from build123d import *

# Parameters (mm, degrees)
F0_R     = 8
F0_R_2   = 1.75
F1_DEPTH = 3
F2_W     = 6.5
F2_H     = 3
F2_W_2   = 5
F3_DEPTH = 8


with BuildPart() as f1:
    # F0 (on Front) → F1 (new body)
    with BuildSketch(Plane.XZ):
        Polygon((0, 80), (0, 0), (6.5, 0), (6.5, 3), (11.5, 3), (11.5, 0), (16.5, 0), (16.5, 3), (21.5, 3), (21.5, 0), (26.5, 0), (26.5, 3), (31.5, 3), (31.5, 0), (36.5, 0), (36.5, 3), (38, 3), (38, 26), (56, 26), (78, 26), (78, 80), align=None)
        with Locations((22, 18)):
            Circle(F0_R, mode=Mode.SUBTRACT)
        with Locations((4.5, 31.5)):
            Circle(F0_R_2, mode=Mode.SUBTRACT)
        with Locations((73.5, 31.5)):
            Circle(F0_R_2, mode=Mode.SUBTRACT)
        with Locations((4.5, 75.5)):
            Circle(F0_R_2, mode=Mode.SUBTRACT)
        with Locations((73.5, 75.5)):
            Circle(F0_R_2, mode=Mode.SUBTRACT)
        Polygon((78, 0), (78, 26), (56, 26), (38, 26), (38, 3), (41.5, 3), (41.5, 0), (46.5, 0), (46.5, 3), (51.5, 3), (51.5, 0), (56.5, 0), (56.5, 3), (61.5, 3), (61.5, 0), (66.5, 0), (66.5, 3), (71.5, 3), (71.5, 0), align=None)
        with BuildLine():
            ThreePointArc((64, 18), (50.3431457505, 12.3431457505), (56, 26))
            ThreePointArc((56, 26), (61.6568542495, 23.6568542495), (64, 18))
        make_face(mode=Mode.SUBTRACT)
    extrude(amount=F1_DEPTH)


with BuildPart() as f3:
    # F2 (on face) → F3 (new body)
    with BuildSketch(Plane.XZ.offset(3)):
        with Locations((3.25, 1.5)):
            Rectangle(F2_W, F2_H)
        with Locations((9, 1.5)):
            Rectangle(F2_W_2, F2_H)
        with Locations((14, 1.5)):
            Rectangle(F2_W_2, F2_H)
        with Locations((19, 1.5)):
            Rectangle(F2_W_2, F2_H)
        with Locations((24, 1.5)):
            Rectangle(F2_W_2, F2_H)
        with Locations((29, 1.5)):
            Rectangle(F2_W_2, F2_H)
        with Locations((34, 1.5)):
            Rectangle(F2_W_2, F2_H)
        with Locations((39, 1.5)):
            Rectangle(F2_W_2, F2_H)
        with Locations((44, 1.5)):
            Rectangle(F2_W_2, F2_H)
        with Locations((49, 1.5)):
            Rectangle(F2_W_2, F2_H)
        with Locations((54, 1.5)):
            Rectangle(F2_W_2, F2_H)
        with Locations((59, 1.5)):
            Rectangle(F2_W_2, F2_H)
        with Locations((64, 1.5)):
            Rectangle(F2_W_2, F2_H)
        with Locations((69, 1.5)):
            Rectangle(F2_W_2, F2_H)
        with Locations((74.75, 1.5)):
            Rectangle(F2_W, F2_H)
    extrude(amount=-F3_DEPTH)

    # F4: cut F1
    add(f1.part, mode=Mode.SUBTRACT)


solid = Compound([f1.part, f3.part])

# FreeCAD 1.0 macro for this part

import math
import FreeCAD as App
import Part
import Sketcher

doc = App.newDocument("Part")
params = doc.addObject("Spreadsheet::Sheet", "Params")
for row, (alias, value) in enumerate([
    ("sketch1_diameter", "16 mm"),
    ("sketch1_diameter2", "3.5 mm"),
    ("sketch1_width", "5 mm"),
    ("sketch1_width2", "78 mm"),
    ("sketch1_height", "80 mm"),
    ("pad1_length", "3 mm"),
    ("sketch2_width", "78 mm"),
    ("sketch2_height", "3 mm"),
    ("pad2_length", "8 mm"),
], start=1):
    params.set(f"A{row}", alias)
    params.set(f"B{row}", "=" + value)
    params.setAlias(f"B{row}", alias)

body = doc.addObject("PartDesign::Body", "Body")

# Sketch on XZ plane
sketch1 = body.newObject("Sketcher::SketchObject", "Sketch")
sketch1.AttachmentSupport = (doc.getObject("XZ_Plane"), [""])
sketch1.MapMode = "FlatFace"
sketch1.addGeometry(Part.LineSegment(App.Vector(0, 80, 0), App.Vector(0, 0, 0)), False)
sketch1.addGeometry(Part.LineSegment(App.Vector(0, 0, 0), App.Vector(6.5, 0, 0)), False)
sketch1.addGeometry(Part.LineSegment(App.Vector(6.5, 0, 0), App.Vector(6.5, 3, 0)), False)
sketch1.addGeometry(Part.LineSegment(App.Vector(6.5, 3, 0), App.Vector(11.5, 3, 0)), False)
sketch1.addGeometry(Part.LineSegment(App.Vector(11.5, 3, 0), App.Vector(11.5, 0, 0)), False)
sketch1.addGeometry(Part.LineSegment(App.Vector(11.5, 0, 0), App.Vector(16.5, 0, 0)), False)
sketch1.addGeometry(Part.LineSegment(App.Vector(16.5, 0, 0), App.Vector(16.5, 3, 0)), False)
sketch1.addGeometry(Part.LineSegment(App.Vector(16.5, 3, 0), App.Vector(21.5, 3, 0)), False)
sketch1.addGeometry(Part.LineSegment(App.Vector(21.5, 3, 0), App.Vector(21.5, 0, 0)), False)
sketch1.addGeometry(Part.LineSegment(App.Vector(21.5, 0, 0), App.Vector(26.5, 0, 0)), False)
sketch1.addGeometry(Part.LineSegment(App.Vector(26.5, 0, 0), App.Vector(26.5, 3, 0)), False)
sketch1.addGeometry(Part.LineSegment(App.Vector(26.5, 3, 0), App.Vector(31.5, 3, 0)), False)
sketch1.addGeometry(Part.LineSegment(App.Vector(31.5, 3, 0), App.Vector(31.5, 0, 0)), False)
sketch1.addGeometry(Part.LineSegment(App.Vector(31.5, 0, 0), App.Vector(36.5, 0, 0)), False)
sketch1.addGeometry(Part.LineSegment(App.Vector(36.5, 0, 0), App.Vector(36.5, 3, 0)), False)
sketch1.addGeometry(Part.LineSegment(App.Vector(36.5, 3, 0), App.Vector(41.5, 3, 0)), False)
sketch1.addGeometry(Part.LineSegment(App.Vector(41.5, 3, 0), App.Vector(41.5, 0, 0)), False)
sketch1.addGeometry(Part.LineSegment(App.Vector(41.5, 0, 0), App.Vector(46.5, 0, 0)), False)
sketch1.addGeometry(Part.LineSegment(App.Vector(46.5, 0, 0), App.Vector(46.5, 3, 0)), False)
sketch1.addGeometry(Part.LineSegment(App.Vector(46.5, 3, 0), App.Vector(51.5, 3, 0)), False)
sketch1.addGeometry(Part.LineSegment(App.Vector(51.5, 3, 0), App.Vector(51.5, 0, 0)), False)
sketch1.addGeometry(Part.LineSegment(App.Vector(51.5, 0, 0), App.Vector(56.5, 0, 0)), False)
sketch1.addGeometry(Part.LineSegment(App.Vector(56.5, 0, 0), App.Vector(56.5, 3, 0)), False)
sketch1.addGeometry(Part.LineSegment(App.Vector(56.5, 3, 0), App.Vector(61.5, 3, 0)), False)
sketch1.addGeometry(Part.LineSegment(App.Vector(61.5, 3, 0), App.Vector(61.5, 0, 0)), False)
sketch1.addGeometry(Part.LineSegment(App.Vector(61.5, 0, 0), App.Vector(66.5, 0, 0)), False)
sketch1.addGeometry(Part.LineSegment(App.Vector(66.5, 0, 0), App.Vector(66.5, 3, 0)), False)
sketch1.addGeometry(Part.LineSegment(App.Vector(66.5, 3, 0), App.Vector(71.5, 3, 0)), False)
sketch1.addGeometry(Part.LineSegment(App.Vector(71.5, 3, 0), App.Vector(71.5, 0, 0)), False)
sketch1.addGeometry(Part.LineSegment(App.Vector(71.5, 0, 0), App.Vector(78, 0, 0)), False)
sketch1.addGeometry(Part.LineSegment(App.Vector(78, 0, 0), App.Vector(78, 80, 0)), False)
sketch1.addGeometry(Part.LineSegment(App.Vector(78, 80, 0), App.Vector(0, 80, 0)), False)
sketch1.addGeometry(Part.Circle(App.Vector(22, 18, 0), App.Vector(0, 0, 1), 8), False)
sketch1.addGeometry(Part.Circle(App.Vector(4.5, 31.5, 0), App.Vector(0, 0, 1), 1.75), False)
sketch1.addGeometry(Part.ArcOfCircle(Part.Circle(App.Vector(56, 18, 0), App.Vector(0, 0, 1), 8), math.radians(0), math.radians(90)), False)
sketch1.addGeometry(Part.ArcOfCircle(Part.Circle(App.Vector(56, 18, 0), App.Vector(0, 0, 1), 8), math.radians(90), math.radians(360)), False)
sketch1.addGeometry(Part.Circle(App.Vector(73.5, 31.5, 0), App.Vector(0, 0, 1), 1.75), False)
sketch1.addGeometry(Part.Circle(App.Vector(4.5, 75.5, 0), App.Vector(0, 0, 1), 1.75), False)
sketch1.addGeometry(Part.Circle(App.Vector(73.5, 75.5, 0), App.Vector(0, 0, 1), 1.75), False)
sketch1.addConstraint(Sketcher.Constraint("Coincident", 0, 2, 1, 1))
sketch1.addConstraint(Sketcher.Constraint("Coincident", 1, 2, 2, 1))
sketch1.addConstraint(Sketcher.Constraint("Coincident", 2, 2, 3, 1))
sketch1.addConstraint(Sketcher.Constraint("Coincident", 3, 2, 4, 1))
sketch1.addConstraint(Sketcher.Constraint("Coincident", 4, 2, 5, 1))
sketch1.addConstraint(Sketcher.Constraint("Coincident", 5, 2, 6, 1))
sketch1.addConstraint(Sketcher.Constraint("Coincident", 6, 2, 7, 1))
sketch1.addConstraint(Sketcher.Constraint("Coincident", 7, 2, 8, 1))
sketch1.addConstraint(Sketcher.Constraint("Coincident", 8, 2, 9, 1))
sketch1.addConstraint(Sketcher.Constraint("Coincident", 9, 2, 10, 1))
sketch1.addConstraint(Sketcher.Constraint("Coincident", 10, 2, 11, 1))
sketch1.addConstraint(Sketcher.Constraint("Coincident", 11, 2, 12, 1))
sketch1.addConstraint(Sketcher.Constraint("Coincident", 12, 2, 13, 1))
sketch1.addConstraint(Sketcher.Constraint("Coincident", 13, 2, 14, 1))
sketch1.addConstraint(Sketcher.Constraint("Coincident", 14, 2, 15, 1))
sketch1.addConstraint(Sketcher.Constraint("Coincident", 15, 2, 16, 1))
sketch1.addConstraint(Sketcher.Constraint("Coincident", 16, 2, 17, 1))
sketch1.addConstraint(Sketcher.Constraint("Coincident", 17, 2, 18, 1))
sketch1.addConstraint(Sketcher.Constraint("Coincident", 18, 2, 19, 1))
sketch1.addConstraint(Sketcher.Constraint("Coincident", 19, 2, 20, 1))
sketch1.addConstraint(Sketcher.Constraint("Coincident", 20, 2, 21, 1))
sketch1.addConstraint(Sketcher.Constraint("Coincident", 21, 2, 22, 1))
sketch1.addConstraint(Sketcher.Constraint("Coincident", 22, 2, 23, 1))
sketch1.addConstraint(Sketcher.Constraint("Coincident", 23, 2, 24, 1))
sketch1.addConstraint(Sketcher.Constraint("Coincident", 24, 2, 25, 1))
sketch1.addConstraint(Sketcher.Constraint("Coincident", 25, 2, 26, 1))
sketch1.addConstraint(Sketcher.Constraint("Coincident", 26, 2, 27, 1))
sketch1.addConstraint(Sketcher.Constraint("Coincident", 27, 2, 28, 1))
sketch1.addConstraint(Sketcher.Constraint("Coincident", 28, 2, 29, 1))
sketch1.addConstraint(Sketcher.Constraint("Coincident", 29, 2, 30, 1))
sketch1.addConstraint(Sketcher.Constraint("Coincident", 30, 2, 31, 1))
sketch1.addConstraint(Sketcher.Constraint("Coincident", 31, 2, 0, 1))
sketch1.addConstraint(Sketcher.Constraint("Tangent", 34, 1, 35, 2))
sketch1.addConstraint(Sketcher.Constraint("Coincident", 35, 1, 34, 2))
sketch1.addConstraint(Sketcher.Constraint("Vertical", 0))
sketch1.addConstraint(Sketcher.Constraint("Horizontal", 1))
sketch1.addConstraint(Sketcher.Constraint("Vertical", 2))
sketch1.addConstraint(Sketcher.Constraint("Horizontal", 3))
sketch1.addConstraint(Sketcher.Constraint("Vertical", 4))
sketch1.addConstraint(Sketcher.Constraint("Horizontal", 5))
sketch1.addConstraint(Sketcher.Constraint("Vertical", 6))
sketch1.addConstraint(Sketcher.Constraint("Horizontal", 7))
sketch1.addConstraint(Sketcher.Constraint("Vertical", 8))
sketch1.addConstraint(Sketcher.Constraint("Horizontal", 9))
sketch1.addConstraint(Sketcher.Constraint("Vertical", 10))
sketch1.addConstraint(Sketcher.Constraint("Horizontal", 11))
sketch1.addConstraint(Sketcher.Constraint("Vertical", 12))
sketch1.addConstraint(Sketcher.Constraint("Horizontal", 13))
sketch1.addConstraint(Sketcher.Constraint("Vertical", 14))
sketch1.addConstraint(Sketcher.Constraint("Horizontal", 15))
sketch1.addConstraint(Sketcher.Constraint("Vertical", 16))
sketch1.addConstraint(Sketcher.Constraint("Horizontal", 17))
sketch1.addConstraint(Sketcher.Constraint("Vertical", 18))
sketch1.addConstraint(Sketcher.Constraint("Horizontal", 19))
sketch1.addConstraint(Sketcher.Constraint("Vertical", 20))
sketch1.addConstraint(Sketcher.Constraint("Horizontal", 21))
sketch1.addConstraint(Sketcher.Constraint("Vertical", 22))
sketch1.addConstraint(Sketcher.Constraint("Horizontal", 23))
sketch1.addConstraint(Sketcher.Constraint("Vertical", 24))
sketch1.addConstraint(Sketcher.Constraint("Horizontal", 25))
sketch1.addConstraint(Sketcher.Constraint("Vertical", 26))
sketch1.addConstraint(Sketcher.Constraint("Horizontal", 27))
sketch1.addConstraint(Sketcher.Constraint("Vertical", 28))
sketch1.addConstraint(Sketcher.Constraint("Horizontal", 29))
sketch1.addConstraint(Sketcher.Constraint("Vertical", 30))
sketch1.addConstraint(Sketcher.Constraint("Horizontal", 31))
sketch1.addConstraint(Sketcher.Constraint("Coincident", 0, 2, -1, 1))
sketch1.addConstraint(Sketcher.Constraint("Equal", 32, 34))
sketch1.addConstraint(Sketcher.Constraint("Equal", 33, 36))
sketch1.addConstraint(Sketcher.Constraint("Equal", 36, 37))
sketch1.addConstraint(Sketcher.Constraint("Equal", 37, 38))
sketch1.addConstraint(Sketcher.Constraint("PointOnObject", 4, 2, -1))
sketch1.addConstraint(Sketcher.Constraint("PointOnObject", 8, 2, -1))
sketch1.addConstraint(Sketcher.Constraint("PointOnObject", 12, 2, -1))
sketch1.addConstraint(Sketcher.Constraint("PointOnObject", 16, 2, -1))
sketch1.addConstraint(Sketcher.Constraint("PointOnObject", 20, 2, -1))
sketch1.addConstraint(Sketcher.Constraint("PointOnObject", 24, 2, -1))
sketch1.addConstraint(Sketcher.Constraint("PointOnObject", 28, 2, -1))
sketch1.addConstraint(Sketcher.Constraint("Horizontal", 32, 3, 34, 3))
sketch1.addConstraint(Sketcher.Constraint("Horizontal", 33, 3, 36, 3))
sketch1.addConstraint(Sketcher.Constraint("Horizontal", 37, 3, 38, 3))
sketch1.addConstraint(Sketcher.Constraint("Horizontal", 3, 2, 6, 2))
sketch1.addConstraint(Sketcher.Constraint("Horizontal", 7, 2, 10, 2))
sketch1.addConstraint(Sketcher.Constraint("Horizontal", 11, 2, 14, 2))
sketch1.addConstraint(Sketcher.Constraint("Horizontal", 15, 2, 18, 2))
sketch1.addConstraint(Sketcher.Constraint("Horizontal", 19, 2, 22, 2))
sketch1.addConstraint(Sketcher.Constraint("Horizontal", 23, 2, 26, 2))
sketch1.addConstraint(Sketcher.Constraint("Horizontal", 35, 3, 34, 1))
sketch1.addConstraint(Sketcher.Constraint("Vertical", 33, 3, 37, 3))
sketch1.addConstraint(Sketcher.Constraint("Vertical", 36, 3, 38, 3))
sketch1.addConstraint(Sketcher.Constraint("Vertical", 34, 3, 35, 1))
sketch1.addConstraint(Sketcher.Constraint("Equal", 3, 5))
sketch1.addConstraint(Sketcher.Constraint("Equal", 5, 7))
sketch1.addConstraint(Sketcher.Constraint("Equal", 7, 9))
sketch1.addConstraint(Sketcher.Constraint("Equal", 9, 11))
sketch1.addConstraint(Sketcher.Constraint("Equal", 11, 13))
sketch1.addConstraint(Sketcher.Constraint("Equal", 13, 15))
sketch1.addConstraint(Sketcher.Constraint("Equal", 15, 17))
sketch1.addConstraint(Sketcher.Constraint("Equal", 17, 19))
sketch1.addConstraint(Sketcher.Constraint("Equal", 19, 21))
sketch1.addConstraint(Sketcher.Constraint("Equal", 21, 23))
sketch1.addConstraint(Sketcher.Constraint("Equal", 23, 25))
sketch1.addConstraint(Sketcher.Constraint("Equal", 25, 27))
sketch1.addConstraint(Sketcher.Constraint("Equal", 1, 29))
sketch1.addConstraint(Sketcher.Constraint("Diameter", 32, 16.0))
sketch1.addConstraint(Sketcher.Constraint("Diameter", 33, 3.5))
sketch1.addConstraint(Sketcher.Constraint("DistanceX", 3, 1, 3, 2, 5.0))
sketch1.addConstraint(Sketcher.Constraint("DistanceX", 31, 2, 31, 1, 78.0))
sketch1.addConstraint(Sketcher.Constraint("DistanceY", 0, 2, 0, 1, 80.0))
sketch1.addConstraint(Sketcher.Constraint("DistanceY", 2, 1, 2, 2, 3.0))
sketch1.addConstraint(Sketcher.Constraint("DistanceX", -1, 1, 32, 3, 22.0))
sketch1.addConstraint(Sketcher.Constraint("DistanceY", -1, 1, 32, 3, 18.0))
sketch1.addConstraint(Sketcher.Constraint("DistanceX", -1, 1, 34, 3, 56.0))
sketch1.addConstraint(Sketcher.Constraint("DistanceX", 33, 3, 36, 3, 69.0))
sketch1.addConstraint(Sketcher.Constraint("DistanceY", 33, 3, 37, 3, 44.0))
sketch1.addConstraint(Sketcher.Constraint("DistanceX", 33, 3, 1, 2, 2.0))
sketch1.addConstraint(Sketcher.Constraint("DistanceY", -1, 1, 33, 3, 31.5))
sketch1.setExpression("Constraints[104]", "Params.sketch1_diameter")
sketch1.setExpression("Constraints[105]", "Params.sketch1_diameter2")
sketch1.setExpression("Constraints[106]", "Params.sketch1_width")
sketch1.setExpression("Constraints[107]", "Params.sketch1_width2")
sketch1.setExpression("Constraints[108]", "Params.sketch1_height")
pad1 = body.newObject("PartDesign::Pad", "Pad")
pad1.Profile = sketch1
pad1.setExpression("Length", "Params.pad1_length")
body2 = doc.addObject("PartDesign::Body", "Body001")

# Sketch on XZ plane
sketch2 = body2.newObject("Sketcher::SketchObject", "Sketch001")
sketch2.AttachmentSupport = (doc.getObject("XZ_Plane001"), [""])
sketch2.MapMode = "FlatFace"
sketch2.AttachmentOffset = App.Placement(App.Vector(0, 0, 3), App.Rotation())
sketch2.addGeometry(Part.LineSegment(App.Vector(0, 3, 0), App.Vector(0, 0, 0)), False)
sketch2.addGeometry(Part.LineSegment(App.Vector(0, 0, 0), App.Vector(78, 0, 0)), False)
sketch2.addGeometry(Part.LineSegment(App.Vector(78, 0, 0), App.Vector(78, 3, 0)), False)
sketch2.addGeometry(Part.LineSegment(App.Vector(78, 3, 0), App.Vector(0, 3, 0)), False)
sketch2.addConstraint(Sketcher.Constraint("Coincident", 0, 2, 1, 1))
sketch2.addConstraint(Sketcher.Constraint("Coincident", 1, 2, 2, 1))
sketch2.addConstraint(Sketcher.Constraint("Coincident", 2, 2, 3, 1))
sketch2.addConstraint(Sketcher.Constraint("Coincident", 3, 2, 0, 1))
sketch2.addConstraint(Sketcher.Constraint("Vertical", 0))
sketch2.addConstraint(Sketcher.Constraint("Horizontal", 1))
sketch2.addConstraint(Sketcher.Constraint("Vertical", 2))
sketch2.addConstraint(Sketcher.Constraint("Horizontal", 3))
sketch2.addConstraint(Sketcher.Constraint("Coincident", 0, 2, -1, 1))
sketch2.addConstraint(Sketcher.Constraint("DistanceX", 1, 1, 1, 2, 78.0))
sketch2.addConstraint(Sketcher.Constraint("DistanceY", 0, 2, 0, 1, 3.0))
sketch2.setExpression("Constraints[9]", "Params.sketch2_width")
sketch2.setExpression("Constraints[10]", "Params.sketch2_height")
pad2 = body2.newObject("PartDesign::Pad", "Pad001")
pad2.Profile = sketch2
pad2.setExpression("Length", "Params.pad2_length")
pad2.Reversed = True
doc.recompute()

body3 = doc.addObject("PartDesign::Body", "Body002")
body3.BaseFeature = body
boolean = body2.newObject("PartDesign::Boolean", "Boolean")
boolean.Type = "Cut"
boolean.addObjects([body3])
doc.recompute()

doc.recompute()
